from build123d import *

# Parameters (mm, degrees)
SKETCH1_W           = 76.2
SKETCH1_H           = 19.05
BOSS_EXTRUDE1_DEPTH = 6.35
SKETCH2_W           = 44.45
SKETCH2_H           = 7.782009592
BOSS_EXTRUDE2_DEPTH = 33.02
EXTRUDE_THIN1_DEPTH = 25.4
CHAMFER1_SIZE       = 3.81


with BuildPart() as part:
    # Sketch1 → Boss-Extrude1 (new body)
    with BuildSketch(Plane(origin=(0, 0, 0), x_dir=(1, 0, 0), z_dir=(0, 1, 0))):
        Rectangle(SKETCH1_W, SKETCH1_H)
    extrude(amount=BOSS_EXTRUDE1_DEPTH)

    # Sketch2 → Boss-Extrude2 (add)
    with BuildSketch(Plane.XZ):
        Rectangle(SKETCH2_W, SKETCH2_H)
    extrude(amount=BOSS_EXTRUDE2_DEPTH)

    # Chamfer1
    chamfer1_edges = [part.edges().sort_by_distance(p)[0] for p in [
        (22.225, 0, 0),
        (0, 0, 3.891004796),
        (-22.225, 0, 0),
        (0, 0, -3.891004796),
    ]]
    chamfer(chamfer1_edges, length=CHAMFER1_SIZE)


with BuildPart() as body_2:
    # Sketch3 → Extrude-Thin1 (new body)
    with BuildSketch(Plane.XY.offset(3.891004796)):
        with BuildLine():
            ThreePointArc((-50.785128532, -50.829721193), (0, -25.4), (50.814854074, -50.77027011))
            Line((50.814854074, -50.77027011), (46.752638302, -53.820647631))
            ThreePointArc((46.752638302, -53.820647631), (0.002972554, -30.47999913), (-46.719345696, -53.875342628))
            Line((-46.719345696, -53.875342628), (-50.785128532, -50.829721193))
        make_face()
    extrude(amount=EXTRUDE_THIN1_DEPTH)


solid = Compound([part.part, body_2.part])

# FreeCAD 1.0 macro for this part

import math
import FreeCAD as App
import Part
import Sketcher
Q = App.Units.Quantity


def edges_at(feature, points):
    """Names of the edges that pass closest to the given points."""
    edges = feature.Shape.Edges
    near = lambda p: min(range(len(edges)), key=lambda i: edges[i].distToShape(Part.Vertex(*p))[0])
    return sorted({f"Edge{near(p) + 1}" for p in points})

doc = App.newDocument("Part")
body = doc.addObject("PartDesign::Body", "Body")

# Sketch on XZ plane
sketch1 = doc.addObject("Sketcher::SketchObject", "Sketch")
body.addObject(sketch1)
sketch1.AttachmentSupport = (doc.XZ_Plane, [""])
sketch1.MapMode = "FlatFace"
sketch1.addGeometry([
    Part.LineSegment(App.Vector(-38, -10, 0), App.Vector(-38, 10, 0)),
    Part.LineSegment(App.Vector(-38, 10, 0), App.Vector(38, 10, 0)),
    Part.LineSegment(App.Vector(38, 10, 0), App.Vector(38, -10, 0)),
    Part.LineSegment(App.Vector(38, -10, 0), App.Vector(-38, -10, 0)),
], False)
sketch1.addConstraint([
    Sketcher.Constraint("Coincident", 0, 2, 1, 1),
    Sketcher.Constraint("Coincident", 1, 2, 2, 1),
    Sketcher.Constraint("Coincident", 2, 2, 3, 1),
    Sketcher.Constraint("Coincident", 3, 2, 0, 1),
    Sketcher.Constraint("Vertical", 0),
    Sketcher.Constraint("Horizontal", 1),
    Sketcher.Constraint("Vertical", 2),
    Sketcher.Constraint("Horizontal", 3),
    Sketcher.Constraint("Symmetric", 0, 2, 2, 2, -1, 1),
    Sketcher.Constraint("DistanceX", 1, 1, 1, 2, Q("3 in")),
    Sketcher.Constraint("DistanceY", 0, 1, 0, 2, Q("0.75 in")),
])
pad1 = doc.addObject("PartDesign::Pad", "Pad")
body.addObject(pad1)
pad1.Profile = sketch1
pad1.Length = Q("0.25 in")
pad1.Reversed = True

# Sketch on XZ plane
sketch2 = doc.addObject("Sketcher::SketchObject", "Sketch001")
body.addObject(sketch2)
sketch2.AttachmentSupport = (doc.XZ_Plane, [""])
sketch2.MapMode = "FlatFace"
sketch2.addGeometry([
    Part.LineSegment(App.Vector(-22, 4, 0), App.Vector(-22, -4, 0)),
    Part.LineSegment(App.Vector(-22, -4, 0), App.Vector(22, -4, 0)),
    Part.LineSegment(App.Vector(22, -4, 0), App.Vector(22, 4, 0)),
    Part.LineSegment(App.Vector(22, 4, 0), App.Vector(-22, 4, 0)),
], False)
sketch2.addConstraint([
    Sketcher.Constraint("Coincident", 0, 2, 1, 1),
    Sketcher.Constraint("Coincident", 1, 2, 2, 1),
    Sketcher.Constraint("Coincident", 2, 2, 3, 1),
    Sketcher.Constraint("Coincident", 3, 2, 0, 1),
    Sketcher.Constraint("Vertical", 0),
    Sketcher.Constraint("Horizontal", 1),
    Sketcher.Constraint("Vertical", 2),
    Sketcher.Constraint("Horizontal", 3),
    Sketcher.Constraint("Symmetric", 0, 2, 2, 2, -1, 1),
    Sketcher.Constraint("DistanceX", 1, 1, 1, 2, Q("1.75 in")),
    Sketcher.Constraint("DistanceY", 0, 2, 0, 1, 7.78201),
])
pad2 = doc.addObject("PartDesign::Pad", "Pad001")
body.addObject(pad2)
pad2.Profile = sketch2
pad2.Length = Q("1.3 in")
doc.recompute()

chamfer = doc.addObject("PartDesign::Chamfer", "Chamfer")
body.addObject(chamfer)
chamfer.Base = (pad2, edges_at(pad2, [
    (22.225, 0, 0),
    (0, 0, 3.891),
    (-22.225, 0, 0),
    (0, 0, -3.891),
]))
chamfer.Size = Q("0.15 in")
body2 = doc.addObject("PartDesign::Body", "Body001")

# Sketch on XY plane
sketch3 = doc.addObject("Sketcher::SketchObject", "Sketch002")
body2.addObject(sketch3)
sketch3.AttachmentSupport = (doc.getObject("XY_Plane001"), [""])
sketch3.MapMode = "FlatFace"
sketch3.AttachmentOffset = App.Placement(App.Vector(0, 0, 3.891005), App.Rotation())
sketch3.addGeometry([
    Part.ArcOfCircle(Part.Circle(App.Vector(0, -89, 0), App.Vector(0, 0, 1), 64), math.radians(37), math.radians(143)),
    Part.LineSegment(App.Vector(-51, -51, 0), App.Vector(-47, -54, 0)),
    Part.ArcOfCircle(Part.Circle(App.Vector(0, -89, 0), App.Vector(0, 0, 1), 58), math.radians(37), math.radians(143)),
    Part.LineSegment(App.Vector(47, -54, 0), App.Vector(51, -51, 0)),
], False)
sketch3.addConstraint([
    Sketcher.Constraint("Coincident", 0, 2, 1, 1),
    Sketcher.Constraint("Coincident", 1, 2, 2, 2),
    Sketcher.Constraint("Coincident", 2, 1, 3, 1),
    Sketcher.Constraint("Coincident", 3, 2, 0, 1),
    Sketcher.Constraint("Coincident", 2, 3, 0, 3),
    Sketcher.Constraint("Radius", 0, Q("2.5 in")),
    Sketcher.Constraint("Radius", 2, Q("2.3 in")),
    Sketcher.Constraint("DistanceX", 1, 2, 3, 2, 97.5342),
    Sketcher.Constraint("DistanceY", 0, 3, -1, 1, 88.899989),
    Sketcher.Constraint("DistanceX", 0, 2, -1, 1, 50.785129),
    Sketcher.Constraint("DistanceY", 0, 2, -1, 1, 50.829721),
    Sketcher.Constraint("DistanceX", -1, 1, 2, 1, 46.752638),
    Sketcher.Constraint("DistanceY", 3, 2, -1, 1, 50.77027),
])
pad3 = doc.addObject("PartDesign::Pad", "Pad002")
body2.addObject(pad3)
pad3.Profile = sketch3
pad3.Length = Q("1 in")

doc.recompute()
